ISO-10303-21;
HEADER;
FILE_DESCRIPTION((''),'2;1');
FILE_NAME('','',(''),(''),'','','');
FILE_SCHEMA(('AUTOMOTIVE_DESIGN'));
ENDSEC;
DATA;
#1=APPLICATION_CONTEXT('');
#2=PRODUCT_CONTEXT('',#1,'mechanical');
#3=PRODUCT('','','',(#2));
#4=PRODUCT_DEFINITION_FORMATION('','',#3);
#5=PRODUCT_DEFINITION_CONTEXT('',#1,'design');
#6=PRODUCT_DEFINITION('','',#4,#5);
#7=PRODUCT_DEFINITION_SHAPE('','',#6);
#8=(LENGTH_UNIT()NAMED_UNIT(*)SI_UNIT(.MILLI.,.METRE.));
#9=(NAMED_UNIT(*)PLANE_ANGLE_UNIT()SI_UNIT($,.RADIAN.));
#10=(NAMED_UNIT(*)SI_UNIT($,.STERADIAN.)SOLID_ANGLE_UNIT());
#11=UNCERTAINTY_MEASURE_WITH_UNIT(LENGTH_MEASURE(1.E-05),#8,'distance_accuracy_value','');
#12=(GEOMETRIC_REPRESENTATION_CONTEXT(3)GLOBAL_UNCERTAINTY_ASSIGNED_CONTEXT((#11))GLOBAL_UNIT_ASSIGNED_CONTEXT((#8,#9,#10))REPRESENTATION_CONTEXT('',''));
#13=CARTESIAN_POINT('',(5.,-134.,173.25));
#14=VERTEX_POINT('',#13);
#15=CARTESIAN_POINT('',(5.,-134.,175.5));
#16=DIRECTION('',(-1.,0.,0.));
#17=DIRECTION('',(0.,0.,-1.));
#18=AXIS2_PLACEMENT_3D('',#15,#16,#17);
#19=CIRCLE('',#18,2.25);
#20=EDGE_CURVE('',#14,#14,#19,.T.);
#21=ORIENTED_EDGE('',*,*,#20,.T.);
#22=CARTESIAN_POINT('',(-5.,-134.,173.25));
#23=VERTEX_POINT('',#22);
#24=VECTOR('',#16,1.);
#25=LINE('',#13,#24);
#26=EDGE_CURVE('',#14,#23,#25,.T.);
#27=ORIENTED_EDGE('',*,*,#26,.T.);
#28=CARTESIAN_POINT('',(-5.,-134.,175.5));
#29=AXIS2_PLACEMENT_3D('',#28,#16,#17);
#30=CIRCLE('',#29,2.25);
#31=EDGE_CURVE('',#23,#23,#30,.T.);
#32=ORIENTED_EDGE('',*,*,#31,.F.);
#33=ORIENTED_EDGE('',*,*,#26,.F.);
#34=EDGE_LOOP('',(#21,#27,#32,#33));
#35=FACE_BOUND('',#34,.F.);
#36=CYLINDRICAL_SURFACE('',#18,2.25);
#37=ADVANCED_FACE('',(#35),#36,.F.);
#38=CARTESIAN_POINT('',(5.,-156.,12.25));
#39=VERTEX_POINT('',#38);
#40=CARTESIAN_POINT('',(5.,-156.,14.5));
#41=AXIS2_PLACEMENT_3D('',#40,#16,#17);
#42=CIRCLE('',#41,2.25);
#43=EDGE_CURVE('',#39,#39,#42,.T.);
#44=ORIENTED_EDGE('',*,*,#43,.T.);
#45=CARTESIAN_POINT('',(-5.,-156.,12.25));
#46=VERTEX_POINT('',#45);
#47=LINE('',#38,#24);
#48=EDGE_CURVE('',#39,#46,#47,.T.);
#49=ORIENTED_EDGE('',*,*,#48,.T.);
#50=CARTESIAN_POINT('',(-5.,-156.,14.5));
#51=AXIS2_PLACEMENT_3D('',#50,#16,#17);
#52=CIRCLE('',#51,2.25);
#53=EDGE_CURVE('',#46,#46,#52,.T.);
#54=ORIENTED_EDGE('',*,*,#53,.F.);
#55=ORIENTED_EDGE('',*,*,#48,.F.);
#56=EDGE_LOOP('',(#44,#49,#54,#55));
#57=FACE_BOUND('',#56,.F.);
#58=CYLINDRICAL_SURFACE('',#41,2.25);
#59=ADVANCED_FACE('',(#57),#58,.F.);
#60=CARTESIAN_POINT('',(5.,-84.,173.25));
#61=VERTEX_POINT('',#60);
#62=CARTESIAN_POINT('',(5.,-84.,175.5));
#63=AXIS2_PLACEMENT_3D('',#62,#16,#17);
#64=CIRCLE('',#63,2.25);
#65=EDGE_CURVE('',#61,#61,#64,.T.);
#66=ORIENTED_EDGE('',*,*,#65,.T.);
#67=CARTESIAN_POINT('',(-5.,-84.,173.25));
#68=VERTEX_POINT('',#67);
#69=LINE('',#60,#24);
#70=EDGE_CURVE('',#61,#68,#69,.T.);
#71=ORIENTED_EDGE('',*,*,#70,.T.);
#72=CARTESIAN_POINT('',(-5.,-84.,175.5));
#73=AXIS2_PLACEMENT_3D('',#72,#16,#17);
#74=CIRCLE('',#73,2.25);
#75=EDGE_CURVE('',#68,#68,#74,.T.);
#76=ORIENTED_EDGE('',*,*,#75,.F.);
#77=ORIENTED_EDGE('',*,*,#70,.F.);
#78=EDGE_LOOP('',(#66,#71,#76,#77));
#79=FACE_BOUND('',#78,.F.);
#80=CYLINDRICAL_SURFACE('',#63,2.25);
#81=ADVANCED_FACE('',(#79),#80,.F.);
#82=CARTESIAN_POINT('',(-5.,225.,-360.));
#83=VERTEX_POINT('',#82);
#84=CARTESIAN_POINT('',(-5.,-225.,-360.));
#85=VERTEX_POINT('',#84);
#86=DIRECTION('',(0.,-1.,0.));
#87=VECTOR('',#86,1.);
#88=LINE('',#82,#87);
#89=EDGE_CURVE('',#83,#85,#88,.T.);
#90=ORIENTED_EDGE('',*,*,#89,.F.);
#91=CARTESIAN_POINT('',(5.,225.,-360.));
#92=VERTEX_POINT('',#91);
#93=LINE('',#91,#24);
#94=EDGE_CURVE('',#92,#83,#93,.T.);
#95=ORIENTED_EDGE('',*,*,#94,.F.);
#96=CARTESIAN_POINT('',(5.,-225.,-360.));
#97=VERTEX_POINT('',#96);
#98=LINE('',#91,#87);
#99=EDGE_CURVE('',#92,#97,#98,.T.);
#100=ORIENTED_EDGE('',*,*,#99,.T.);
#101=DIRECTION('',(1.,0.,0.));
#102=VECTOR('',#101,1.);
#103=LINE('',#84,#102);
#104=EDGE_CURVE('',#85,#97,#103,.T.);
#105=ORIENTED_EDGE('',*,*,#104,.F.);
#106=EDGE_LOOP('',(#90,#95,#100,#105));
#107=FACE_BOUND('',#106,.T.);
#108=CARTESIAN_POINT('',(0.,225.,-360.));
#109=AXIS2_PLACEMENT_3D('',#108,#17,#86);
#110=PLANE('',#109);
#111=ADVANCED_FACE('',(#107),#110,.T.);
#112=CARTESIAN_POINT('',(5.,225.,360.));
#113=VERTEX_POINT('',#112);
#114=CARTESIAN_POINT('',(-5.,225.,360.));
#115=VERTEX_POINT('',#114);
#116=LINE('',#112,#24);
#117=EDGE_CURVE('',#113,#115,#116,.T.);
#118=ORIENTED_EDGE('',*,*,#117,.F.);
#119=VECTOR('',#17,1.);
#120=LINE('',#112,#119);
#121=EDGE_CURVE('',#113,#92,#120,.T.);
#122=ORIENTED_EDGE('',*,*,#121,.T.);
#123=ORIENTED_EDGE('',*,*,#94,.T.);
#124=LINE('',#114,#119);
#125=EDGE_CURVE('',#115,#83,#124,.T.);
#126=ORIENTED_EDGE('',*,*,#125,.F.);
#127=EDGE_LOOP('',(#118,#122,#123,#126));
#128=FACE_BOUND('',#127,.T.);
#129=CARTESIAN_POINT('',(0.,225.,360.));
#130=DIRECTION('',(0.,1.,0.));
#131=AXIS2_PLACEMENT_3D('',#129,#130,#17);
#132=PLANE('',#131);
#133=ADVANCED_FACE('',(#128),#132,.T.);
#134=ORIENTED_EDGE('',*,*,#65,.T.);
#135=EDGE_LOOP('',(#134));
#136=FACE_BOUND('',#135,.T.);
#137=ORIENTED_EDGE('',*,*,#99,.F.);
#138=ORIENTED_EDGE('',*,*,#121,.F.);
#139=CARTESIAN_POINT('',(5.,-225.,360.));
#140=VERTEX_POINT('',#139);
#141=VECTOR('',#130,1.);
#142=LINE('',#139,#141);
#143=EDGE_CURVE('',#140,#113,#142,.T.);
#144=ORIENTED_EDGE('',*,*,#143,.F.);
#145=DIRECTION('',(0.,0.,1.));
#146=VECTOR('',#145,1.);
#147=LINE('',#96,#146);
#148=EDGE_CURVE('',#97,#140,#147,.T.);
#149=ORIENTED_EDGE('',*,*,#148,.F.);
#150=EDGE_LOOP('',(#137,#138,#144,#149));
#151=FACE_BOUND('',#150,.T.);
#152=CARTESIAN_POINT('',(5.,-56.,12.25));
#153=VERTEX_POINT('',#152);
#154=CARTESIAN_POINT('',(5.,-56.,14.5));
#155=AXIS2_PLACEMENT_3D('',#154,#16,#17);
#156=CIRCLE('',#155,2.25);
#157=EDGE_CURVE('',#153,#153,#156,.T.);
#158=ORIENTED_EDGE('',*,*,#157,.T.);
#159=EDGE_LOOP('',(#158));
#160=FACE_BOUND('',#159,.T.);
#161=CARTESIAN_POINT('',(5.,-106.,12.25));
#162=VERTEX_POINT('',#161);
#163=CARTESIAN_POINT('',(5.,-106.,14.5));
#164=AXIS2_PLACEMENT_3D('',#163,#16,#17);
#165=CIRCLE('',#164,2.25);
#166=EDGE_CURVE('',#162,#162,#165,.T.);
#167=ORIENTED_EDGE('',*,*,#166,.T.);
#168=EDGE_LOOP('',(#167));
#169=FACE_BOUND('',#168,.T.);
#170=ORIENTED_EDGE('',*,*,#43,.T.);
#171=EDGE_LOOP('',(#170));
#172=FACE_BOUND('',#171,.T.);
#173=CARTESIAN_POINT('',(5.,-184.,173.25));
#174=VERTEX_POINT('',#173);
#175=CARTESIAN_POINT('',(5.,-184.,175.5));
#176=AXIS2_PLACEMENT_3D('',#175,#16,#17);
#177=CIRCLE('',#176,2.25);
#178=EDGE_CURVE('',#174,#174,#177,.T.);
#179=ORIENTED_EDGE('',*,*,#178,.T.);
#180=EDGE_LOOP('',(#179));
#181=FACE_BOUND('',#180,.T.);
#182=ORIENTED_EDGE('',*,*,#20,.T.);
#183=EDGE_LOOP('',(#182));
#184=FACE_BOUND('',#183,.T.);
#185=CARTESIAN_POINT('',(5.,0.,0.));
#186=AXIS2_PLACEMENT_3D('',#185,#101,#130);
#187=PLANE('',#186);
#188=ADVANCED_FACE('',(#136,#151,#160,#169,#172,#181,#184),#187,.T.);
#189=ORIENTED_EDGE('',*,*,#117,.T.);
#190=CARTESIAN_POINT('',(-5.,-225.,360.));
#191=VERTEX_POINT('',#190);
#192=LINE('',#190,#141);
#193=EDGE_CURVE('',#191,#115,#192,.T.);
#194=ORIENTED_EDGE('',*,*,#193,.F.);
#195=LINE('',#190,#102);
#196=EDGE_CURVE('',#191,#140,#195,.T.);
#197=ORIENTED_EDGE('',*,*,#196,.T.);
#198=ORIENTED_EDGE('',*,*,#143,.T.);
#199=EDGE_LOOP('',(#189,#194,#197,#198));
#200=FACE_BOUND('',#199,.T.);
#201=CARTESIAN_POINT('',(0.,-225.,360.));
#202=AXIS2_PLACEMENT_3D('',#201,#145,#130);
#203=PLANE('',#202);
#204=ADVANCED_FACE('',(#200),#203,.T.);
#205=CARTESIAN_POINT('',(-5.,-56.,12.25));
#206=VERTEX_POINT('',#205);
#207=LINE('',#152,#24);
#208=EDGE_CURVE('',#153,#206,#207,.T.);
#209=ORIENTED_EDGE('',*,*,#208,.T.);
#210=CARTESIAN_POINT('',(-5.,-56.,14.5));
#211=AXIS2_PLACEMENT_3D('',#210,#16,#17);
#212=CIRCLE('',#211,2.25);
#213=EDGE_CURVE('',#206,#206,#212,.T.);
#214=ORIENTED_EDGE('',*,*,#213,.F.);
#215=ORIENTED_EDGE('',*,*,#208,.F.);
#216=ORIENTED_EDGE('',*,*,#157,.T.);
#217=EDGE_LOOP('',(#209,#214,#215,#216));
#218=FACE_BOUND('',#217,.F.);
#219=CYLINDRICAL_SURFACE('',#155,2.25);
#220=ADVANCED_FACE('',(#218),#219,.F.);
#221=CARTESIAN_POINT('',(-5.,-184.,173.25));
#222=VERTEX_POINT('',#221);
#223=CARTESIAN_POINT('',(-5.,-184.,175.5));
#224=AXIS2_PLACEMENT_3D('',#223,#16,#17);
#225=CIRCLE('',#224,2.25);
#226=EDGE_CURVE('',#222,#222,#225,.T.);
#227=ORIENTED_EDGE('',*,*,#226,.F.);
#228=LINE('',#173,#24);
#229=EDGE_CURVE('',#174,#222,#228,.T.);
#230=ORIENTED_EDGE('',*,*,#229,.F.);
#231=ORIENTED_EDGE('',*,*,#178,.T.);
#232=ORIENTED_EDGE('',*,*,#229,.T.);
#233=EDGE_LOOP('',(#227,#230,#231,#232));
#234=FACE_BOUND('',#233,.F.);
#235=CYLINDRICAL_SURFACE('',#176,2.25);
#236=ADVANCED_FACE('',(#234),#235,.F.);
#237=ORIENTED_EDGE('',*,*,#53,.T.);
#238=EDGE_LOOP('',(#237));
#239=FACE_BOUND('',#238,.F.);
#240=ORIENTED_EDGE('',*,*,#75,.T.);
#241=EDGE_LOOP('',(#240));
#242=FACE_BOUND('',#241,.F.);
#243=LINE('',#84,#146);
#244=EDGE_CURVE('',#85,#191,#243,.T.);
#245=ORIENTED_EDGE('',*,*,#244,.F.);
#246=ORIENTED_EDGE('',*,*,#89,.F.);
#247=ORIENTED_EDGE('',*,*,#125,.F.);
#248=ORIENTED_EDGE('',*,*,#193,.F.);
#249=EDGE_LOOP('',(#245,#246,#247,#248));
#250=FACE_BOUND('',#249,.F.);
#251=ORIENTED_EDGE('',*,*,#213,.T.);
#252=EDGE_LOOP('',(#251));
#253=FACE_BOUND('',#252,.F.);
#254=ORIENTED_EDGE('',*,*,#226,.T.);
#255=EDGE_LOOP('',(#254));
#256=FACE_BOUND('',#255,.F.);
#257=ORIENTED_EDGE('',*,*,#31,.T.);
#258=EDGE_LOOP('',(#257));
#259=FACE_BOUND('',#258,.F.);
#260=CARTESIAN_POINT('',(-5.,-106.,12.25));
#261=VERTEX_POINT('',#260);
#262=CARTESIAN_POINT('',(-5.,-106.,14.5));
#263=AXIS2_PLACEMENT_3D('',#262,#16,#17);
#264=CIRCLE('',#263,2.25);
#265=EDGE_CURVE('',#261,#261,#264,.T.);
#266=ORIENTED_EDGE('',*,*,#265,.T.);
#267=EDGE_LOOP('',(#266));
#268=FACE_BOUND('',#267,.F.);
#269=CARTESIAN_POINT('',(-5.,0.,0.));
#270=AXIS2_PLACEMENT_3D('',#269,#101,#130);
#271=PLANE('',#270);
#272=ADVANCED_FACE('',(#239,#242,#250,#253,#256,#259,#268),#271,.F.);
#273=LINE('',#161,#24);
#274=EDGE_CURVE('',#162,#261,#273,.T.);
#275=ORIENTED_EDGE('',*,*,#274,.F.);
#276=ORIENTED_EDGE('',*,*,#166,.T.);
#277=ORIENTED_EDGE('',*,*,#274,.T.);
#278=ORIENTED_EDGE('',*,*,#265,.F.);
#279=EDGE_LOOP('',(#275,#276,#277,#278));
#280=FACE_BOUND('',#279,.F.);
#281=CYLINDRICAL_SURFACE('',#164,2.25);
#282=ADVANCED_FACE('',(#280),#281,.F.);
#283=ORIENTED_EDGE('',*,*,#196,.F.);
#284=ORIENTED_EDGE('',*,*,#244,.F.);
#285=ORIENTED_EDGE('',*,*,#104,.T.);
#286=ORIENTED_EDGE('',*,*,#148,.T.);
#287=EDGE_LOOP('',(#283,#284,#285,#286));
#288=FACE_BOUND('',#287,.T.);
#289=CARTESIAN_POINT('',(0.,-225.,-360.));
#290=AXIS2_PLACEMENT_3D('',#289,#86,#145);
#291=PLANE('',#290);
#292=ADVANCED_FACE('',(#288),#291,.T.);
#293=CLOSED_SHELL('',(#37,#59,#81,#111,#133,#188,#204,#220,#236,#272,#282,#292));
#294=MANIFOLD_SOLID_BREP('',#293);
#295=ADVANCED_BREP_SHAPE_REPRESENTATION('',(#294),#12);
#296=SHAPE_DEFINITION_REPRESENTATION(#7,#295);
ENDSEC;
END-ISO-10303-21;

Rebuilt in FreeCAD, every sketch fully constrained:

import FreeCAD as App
import Part
import Sketcher


def add_polygon(sketch, points):
    """Adds a closed chain of lines whose ends are joined by coincident constraints."""
    first, n = sketch.GeometryCount, len(points)
    for a, b in zip(points, points[1:] + points[:1]):
        sketch.addGeometry(Part.LineSegment(App.Vector(*a, 0), App.Vector(*b, 0)), False)
    for i in range(n):
        sketch.addConstraint(Sketcher.Constraint("Coincident", first + i, 2, first + (i + 1) % n, 1))

doc = App.newDocument("Part")
body = doc.addObject("PartDesign::Body", "Body")

# Sketch on YZ plane
sketch1 = doc.addObject("Sketcher::SketchObject", "Sketch")
body.addObject(sketch1)
sketch1.AttachmentSupport = (doc.YZ_Plane, [""])
sketch1.MapMode = "FlatFace"
add_polygon(sketch1, [(225, 360), (-225, 360), (-225, -360), (225, -360)])  # lines 0-3
sketch1.addConstraint([
    Sketcher.Constraint("Horizontal", 0),
    Sketcher.Constraint("Vertical", 1),
    Sketcher.Constraint("Horizontal", 2),
    Sketcher.Constraint("Vertical", 3),
    Sketcher.Constraint("Symmetric", 0, 2, 2, 2, -1, 1),
    Sketcher.Constraint("DistanceX", 0, 2, 0, 1, 450.0),
    Sketcher.Constraint("DistanceY", 1, 2, 1, 1, 720.0),
])
pad1 = doc.addObject("PartDesign::Pad", "Pad")
body.addObject(pad1)
pad1.Profile = sketch1
pad1.Length = 10
pad1.Midplane = True

# Sketch on YZ plane
sketch2 = doc.addObject("Sketcher::SketchObject", "Sketch001")
body.addObject(sketch2)
sketch2.AttachmentSupport = (doc.YZ_Plane, [""])
sketch2.MapMode = "FlatFace"
sketch2.AttachmentOffset = App.Placement(App.Vector(0, 0, 5), App.Rotation())
sketch2.addGeometry([
    Part.Circle(App.Vector(-84, 175.5, 0), App.Vector(0, 0, 1), 2.2),  # 0
    Part.Circle(App.Vector(-56, 14.5, 0), App.Vector(0, 0, 1), 2.2),  # 1
    Part.Circle(App.Vector(-134, 175.5, 0), App.Vector(0, 0, 1), 2.2),  # 2
    Part.Circle(App.Vector(-106, 14.5, 0), App.Vector(0, 0, 1), 2.2),  # 3
    Part.Circle(App.Vector(-184, 175.5, 0), App.Vector(0, 0, 1), 2.2),  # 4
    Part.Circle(App.Vector(-156, 14.5, 0), App.Vector(0, 0, 1), 2.2),  # 5
], False)
sketch2.addConstraint([
    Sketcher.Constraint("Equal", 0, 1),
    Sketcher.Constraint("Equal", 1, 2),
    Sketcher.Constraint("Equal", 2, 3),
    Sketcher.Constraint("Equal", 3, 4),
    Sketcher.Constraint("Equal", 4, 5),
    Sketcher.Constraint("Horizontal", 0, 3, 2, 3),
    Sketcher.Constraint("Horizontal", 1, 3, 3, 3),
    Sketcher.Constraint("Horizontal", 2, 3, 4, 3),
    Sketcher.Constraint("Horizontal", 3, 3, 5, 3),
    Sketcher.Constraint("Diameter", 0, 4.5),
    Sketcher.Constraint("DistanceX", 0, 3, -1, 1, 84.0),
    Sketcher.Constraint("DistanceX", 1, 3, -1, 1, 56.0),
    Sketcher.Constraint("DistanceX", 2, 3, -1, 1, 134.0),
    Sketcher.Constraint("DistanceX", 3, 3, -1, 1, 106.0),
    Sketcher.Constraint("DistanceX", 4, 3, -1, 1, 184.0),
    Sketcher.Constraint("DistanceX", 5, 3, -1, 1, 156.0),
    Sketcher.Constraint("DistanceY", 1, 3, 0, 3, 161.0),
    Sketcher.Constraint("DistanceY", -1, 1, 0, 3, 175.5),
])
doc.recompute()
hole = doc.addObject("PartDesign::Hole", "Hole")
body.addObject(hole)
hole.Profile = sketch2
hole.ThreadType = "None"
hole.Diameter = 4.5
hole.DepthType = "ThroughAll"

doc.recompute()
